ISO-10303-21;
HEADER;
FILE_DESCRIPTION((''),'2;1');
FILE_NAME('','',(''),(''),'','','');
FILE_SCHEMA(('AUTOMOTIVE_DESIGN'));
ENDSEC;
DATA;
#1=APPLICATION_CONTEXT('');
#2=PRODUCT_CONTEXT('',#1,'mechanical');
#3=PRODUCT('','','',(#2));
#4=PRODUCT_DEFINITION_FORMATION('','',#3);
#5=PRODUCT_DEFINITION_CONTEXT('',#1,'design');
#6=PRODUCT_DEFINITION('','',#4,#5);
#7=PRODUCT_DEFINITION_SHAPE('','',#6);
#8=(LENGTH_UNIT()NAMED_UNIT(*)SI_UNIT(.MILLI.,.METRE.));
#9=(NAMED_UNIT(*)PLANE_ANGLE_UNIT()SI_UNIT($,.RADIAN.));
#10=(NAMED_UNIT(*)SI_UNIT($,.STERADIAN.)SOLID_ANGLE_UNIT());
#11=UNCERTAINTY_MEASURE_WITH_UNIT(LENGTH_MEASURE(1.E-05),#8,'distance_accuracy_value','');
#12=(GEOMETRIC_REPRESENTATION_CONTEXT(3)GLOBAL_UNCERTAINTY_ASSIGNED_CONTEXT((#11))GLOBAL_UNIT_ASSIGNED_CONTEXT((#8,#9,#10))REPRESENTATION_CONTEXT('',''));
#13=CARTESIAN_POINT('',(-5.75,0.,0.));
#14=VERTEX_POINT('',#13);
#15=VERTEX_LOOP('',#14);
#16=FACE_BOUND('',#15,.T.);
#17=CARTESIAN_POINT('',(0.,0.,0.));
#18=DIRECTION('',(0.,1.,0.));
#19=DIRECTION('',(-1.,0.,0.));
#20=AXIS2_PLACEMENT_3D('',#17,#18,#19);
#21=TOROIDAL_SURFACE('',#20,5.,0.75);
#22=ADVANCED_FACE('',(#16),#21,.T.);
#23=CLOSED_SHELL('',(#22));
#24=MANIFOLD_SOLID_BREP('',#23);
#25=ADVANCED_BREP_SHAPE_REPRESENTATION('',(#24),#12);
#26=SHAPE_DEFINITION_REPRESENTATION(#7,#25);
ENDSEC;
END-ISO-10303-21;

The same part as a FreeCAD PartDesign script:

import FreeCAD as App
import Part
import Sketcher

V = App.Vector
Q = App.Units.Quantity

doc = App.newDocument("Part")
params = doc.addObject("Spreadsheet::Sheet", "Params")
for row, (alias, value) in enumerate([
    ("sketch1_diameter", "1.5 mm"),
    ("revolution_angle", "360 deg"),
], start=1):
    params.set(f"A{row}", alias)
    params.set(f"B{row}", "=" + value)
    params.setAlias(f"B{row}", alias)

body = doc.addObject("PartDesign::Body", "Body")

sketch1 = doc.addObject("Sketcher::SketchObject", "Sketch")
body.addObject(sketch1)
sketch1.AttachmentSupport = (doc.XY_Plane, [""])
sketch1.MapMode = "FlatFace"
sketch1.addGeometry(Part.Circle(V(5, 0, 0), V(0, 0, 1), 0.75), False)
sketch1.addConstraint(Sketcher.Constraint("PointOnObject", 0, 3, -1))
sketch1.addConstraint(Sketcher.Constraint("Diameter", 0, Q("1.5 mm")))
sketch1.addConstraint(Sketcher.Constraint("DistanceX", -1, 1, 0, 3, Q("5 mm")))
sketch1.setExpression("Constraints[1]", "Params.sketch1_diameter")
revolution = doc.addObject("PartDesign::Revolution", "Revolution")
body.addObject(revolution)
revolution.Profile = sketch1
revolution.ReferenceAxis = (sketch1, ["V_Axis"])
revolution.setExpression("Angle", "Params.revolution_angle")

doc.recompute()
